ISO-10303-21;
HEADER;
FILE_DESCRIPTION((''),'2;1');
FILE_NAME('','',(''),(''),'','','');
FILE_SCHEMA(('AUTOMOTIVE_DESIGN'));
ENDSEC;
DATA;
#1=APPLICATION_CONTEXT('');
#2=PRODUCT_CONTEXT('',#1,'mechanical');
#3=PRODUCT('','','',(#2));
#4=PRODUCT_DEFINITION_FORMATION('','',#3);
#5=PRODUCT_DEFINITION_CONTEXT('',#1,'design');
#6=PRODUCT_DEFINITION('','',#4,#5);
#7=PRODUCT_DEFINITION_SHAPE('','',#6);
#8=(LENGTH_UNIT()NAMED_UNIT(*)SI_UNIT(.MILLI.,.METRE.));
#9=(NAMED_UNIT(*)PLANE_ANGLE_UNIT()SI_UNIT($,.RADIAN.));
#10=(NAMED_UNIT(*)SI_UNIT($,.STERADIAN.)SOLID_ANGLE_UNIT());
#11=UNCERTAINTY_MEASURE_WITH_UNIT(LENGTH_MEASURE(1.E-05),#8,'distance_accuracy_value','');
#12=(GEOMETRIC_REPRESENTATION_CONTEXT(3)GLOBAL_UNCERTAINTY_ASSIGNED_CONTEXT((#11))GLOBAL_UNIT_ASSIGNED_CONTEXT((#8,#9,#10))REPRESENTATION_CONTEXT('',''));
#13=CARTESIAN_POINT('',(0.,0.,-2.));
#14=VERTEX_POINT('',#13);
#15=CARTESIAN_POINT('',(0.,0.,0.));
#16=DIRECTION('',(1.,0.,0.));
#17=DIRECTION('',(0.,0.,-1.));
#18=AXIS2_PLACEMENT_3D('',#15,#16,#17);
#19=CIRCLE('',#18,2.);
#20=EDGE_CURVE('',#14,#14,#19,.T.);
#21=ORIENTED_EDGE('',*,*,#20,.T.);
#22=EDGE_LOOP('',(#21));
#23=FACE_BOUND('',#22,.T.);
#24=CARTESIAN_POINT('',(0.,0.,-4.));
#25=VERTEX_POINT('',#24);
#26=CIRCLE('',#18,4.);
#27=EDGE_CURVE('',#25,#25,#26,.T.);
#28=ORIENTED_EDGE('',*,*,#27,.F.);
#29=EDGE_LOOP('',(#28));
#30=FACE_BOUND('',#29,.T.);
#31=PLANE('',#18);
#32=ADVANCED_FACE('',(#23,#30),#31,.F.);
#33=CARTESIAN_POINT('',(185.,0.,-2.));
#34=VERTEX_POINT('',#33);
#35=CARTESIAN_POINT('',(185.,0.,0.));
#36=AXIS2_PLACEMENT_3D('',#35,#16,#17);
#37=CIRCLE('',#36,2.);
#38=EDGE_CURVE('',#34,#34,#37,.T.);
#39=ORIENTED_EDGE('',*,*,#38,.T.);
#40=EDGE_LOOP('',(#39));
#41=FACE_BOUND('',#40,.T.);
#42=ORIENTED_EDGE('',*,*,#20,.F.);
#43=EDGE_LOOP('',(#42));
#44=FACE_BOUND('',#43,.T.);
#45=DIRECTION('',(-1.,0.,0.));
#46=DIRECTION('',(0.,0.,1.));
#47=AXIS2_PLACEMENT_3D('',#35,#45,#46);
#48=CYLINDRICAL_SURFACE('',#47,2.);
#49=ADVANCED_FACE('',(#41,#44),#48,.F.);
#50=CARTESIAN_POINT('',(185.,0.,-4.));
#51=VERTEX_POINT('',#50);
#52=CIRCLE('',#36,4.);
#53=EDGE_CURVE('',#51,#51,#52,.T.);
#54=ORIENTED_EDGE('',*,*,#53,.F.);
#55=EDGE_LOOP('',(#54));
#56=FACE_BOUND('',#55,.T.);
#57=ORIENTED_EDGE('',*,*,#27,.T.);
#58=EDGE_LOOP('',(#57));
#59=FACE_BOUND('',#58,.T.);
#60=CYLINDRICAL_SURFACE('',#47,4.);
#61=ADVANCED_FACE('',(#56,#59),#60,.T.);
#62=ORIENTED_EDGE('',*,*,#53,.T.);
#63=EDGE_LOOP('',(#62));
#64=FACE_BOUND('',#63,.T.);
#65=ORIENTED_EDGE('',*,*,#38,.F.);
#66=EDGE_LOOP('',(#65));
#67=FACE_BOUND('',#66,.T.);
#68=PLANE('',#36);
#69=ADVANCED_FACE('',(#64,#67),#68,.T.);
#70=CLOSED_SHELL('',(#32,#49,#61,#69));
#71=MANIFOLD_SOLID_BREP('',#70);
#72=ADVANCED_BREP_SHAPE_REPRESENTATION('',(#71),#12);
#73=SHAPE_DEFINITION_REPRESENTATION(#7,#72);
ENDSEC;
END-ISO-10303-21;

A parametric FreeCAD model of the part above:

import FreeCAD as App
import Part
import Sketcher
from FreeCAD import Vector
Q = App.Units.Quantity

doc = App.newDocument("Part")
params = doc.addObject("Spreadsheet::Sheet", "Params")
for row, (alias, value) in enumerate([
    ("sketch1_diameter", "8 mm"),
    ("sketch1_diameter2", "4 mm"),
    ("pad1_length", "185 mm"),
], start=1):
    params.set(f"A{row}", alias)
    params.set(f"B{row}", "=" + value)
    params.setAlias(f"B{row}", alias)

body = doc.addObject("PartDesign::Body", "Body")

# Sketch on YZ plane
sketch1 = body.newObject("Sketcher::SketchObject", "Sketch")
sketch1.AttachmentSupport = (doc.getObject("YZ_Plane"), [""])
sketch1.MapMode = "FlatFace"
sketch1.addGeometry([
    Part.Circle(Vector(0, 0, 0), Vector(0, 0, 1), 4),
    Part.Circle(Vector(0, 0, 0), Vector(0, 0, 1), 2),
], False)
sketch1.addConstraint([
    Sketcher.Constraint("Coincident", 0, 3, -1, 1),
    Sketcher.Constraint("Coincident", 1, 3, -1, 1),
    Sketcher.Constraint("Diameter", 0, Q("8 mm")),
    Sketcher.Constraint("Diameter", 1, Q("4 mm")),
])
sketch1.setExpression("Constraints[2]", "Params.sketch1_diameter")
sketch1.setExpression("Constraints[3]", "Params.sketch1_diameter2")
pad1 = body.newObject("PartDesign::Pad", "Pad")
pad1.Profile = sketch1
pad1.setExpression("Length", "Params.pad1_length")

doc.recompute()
